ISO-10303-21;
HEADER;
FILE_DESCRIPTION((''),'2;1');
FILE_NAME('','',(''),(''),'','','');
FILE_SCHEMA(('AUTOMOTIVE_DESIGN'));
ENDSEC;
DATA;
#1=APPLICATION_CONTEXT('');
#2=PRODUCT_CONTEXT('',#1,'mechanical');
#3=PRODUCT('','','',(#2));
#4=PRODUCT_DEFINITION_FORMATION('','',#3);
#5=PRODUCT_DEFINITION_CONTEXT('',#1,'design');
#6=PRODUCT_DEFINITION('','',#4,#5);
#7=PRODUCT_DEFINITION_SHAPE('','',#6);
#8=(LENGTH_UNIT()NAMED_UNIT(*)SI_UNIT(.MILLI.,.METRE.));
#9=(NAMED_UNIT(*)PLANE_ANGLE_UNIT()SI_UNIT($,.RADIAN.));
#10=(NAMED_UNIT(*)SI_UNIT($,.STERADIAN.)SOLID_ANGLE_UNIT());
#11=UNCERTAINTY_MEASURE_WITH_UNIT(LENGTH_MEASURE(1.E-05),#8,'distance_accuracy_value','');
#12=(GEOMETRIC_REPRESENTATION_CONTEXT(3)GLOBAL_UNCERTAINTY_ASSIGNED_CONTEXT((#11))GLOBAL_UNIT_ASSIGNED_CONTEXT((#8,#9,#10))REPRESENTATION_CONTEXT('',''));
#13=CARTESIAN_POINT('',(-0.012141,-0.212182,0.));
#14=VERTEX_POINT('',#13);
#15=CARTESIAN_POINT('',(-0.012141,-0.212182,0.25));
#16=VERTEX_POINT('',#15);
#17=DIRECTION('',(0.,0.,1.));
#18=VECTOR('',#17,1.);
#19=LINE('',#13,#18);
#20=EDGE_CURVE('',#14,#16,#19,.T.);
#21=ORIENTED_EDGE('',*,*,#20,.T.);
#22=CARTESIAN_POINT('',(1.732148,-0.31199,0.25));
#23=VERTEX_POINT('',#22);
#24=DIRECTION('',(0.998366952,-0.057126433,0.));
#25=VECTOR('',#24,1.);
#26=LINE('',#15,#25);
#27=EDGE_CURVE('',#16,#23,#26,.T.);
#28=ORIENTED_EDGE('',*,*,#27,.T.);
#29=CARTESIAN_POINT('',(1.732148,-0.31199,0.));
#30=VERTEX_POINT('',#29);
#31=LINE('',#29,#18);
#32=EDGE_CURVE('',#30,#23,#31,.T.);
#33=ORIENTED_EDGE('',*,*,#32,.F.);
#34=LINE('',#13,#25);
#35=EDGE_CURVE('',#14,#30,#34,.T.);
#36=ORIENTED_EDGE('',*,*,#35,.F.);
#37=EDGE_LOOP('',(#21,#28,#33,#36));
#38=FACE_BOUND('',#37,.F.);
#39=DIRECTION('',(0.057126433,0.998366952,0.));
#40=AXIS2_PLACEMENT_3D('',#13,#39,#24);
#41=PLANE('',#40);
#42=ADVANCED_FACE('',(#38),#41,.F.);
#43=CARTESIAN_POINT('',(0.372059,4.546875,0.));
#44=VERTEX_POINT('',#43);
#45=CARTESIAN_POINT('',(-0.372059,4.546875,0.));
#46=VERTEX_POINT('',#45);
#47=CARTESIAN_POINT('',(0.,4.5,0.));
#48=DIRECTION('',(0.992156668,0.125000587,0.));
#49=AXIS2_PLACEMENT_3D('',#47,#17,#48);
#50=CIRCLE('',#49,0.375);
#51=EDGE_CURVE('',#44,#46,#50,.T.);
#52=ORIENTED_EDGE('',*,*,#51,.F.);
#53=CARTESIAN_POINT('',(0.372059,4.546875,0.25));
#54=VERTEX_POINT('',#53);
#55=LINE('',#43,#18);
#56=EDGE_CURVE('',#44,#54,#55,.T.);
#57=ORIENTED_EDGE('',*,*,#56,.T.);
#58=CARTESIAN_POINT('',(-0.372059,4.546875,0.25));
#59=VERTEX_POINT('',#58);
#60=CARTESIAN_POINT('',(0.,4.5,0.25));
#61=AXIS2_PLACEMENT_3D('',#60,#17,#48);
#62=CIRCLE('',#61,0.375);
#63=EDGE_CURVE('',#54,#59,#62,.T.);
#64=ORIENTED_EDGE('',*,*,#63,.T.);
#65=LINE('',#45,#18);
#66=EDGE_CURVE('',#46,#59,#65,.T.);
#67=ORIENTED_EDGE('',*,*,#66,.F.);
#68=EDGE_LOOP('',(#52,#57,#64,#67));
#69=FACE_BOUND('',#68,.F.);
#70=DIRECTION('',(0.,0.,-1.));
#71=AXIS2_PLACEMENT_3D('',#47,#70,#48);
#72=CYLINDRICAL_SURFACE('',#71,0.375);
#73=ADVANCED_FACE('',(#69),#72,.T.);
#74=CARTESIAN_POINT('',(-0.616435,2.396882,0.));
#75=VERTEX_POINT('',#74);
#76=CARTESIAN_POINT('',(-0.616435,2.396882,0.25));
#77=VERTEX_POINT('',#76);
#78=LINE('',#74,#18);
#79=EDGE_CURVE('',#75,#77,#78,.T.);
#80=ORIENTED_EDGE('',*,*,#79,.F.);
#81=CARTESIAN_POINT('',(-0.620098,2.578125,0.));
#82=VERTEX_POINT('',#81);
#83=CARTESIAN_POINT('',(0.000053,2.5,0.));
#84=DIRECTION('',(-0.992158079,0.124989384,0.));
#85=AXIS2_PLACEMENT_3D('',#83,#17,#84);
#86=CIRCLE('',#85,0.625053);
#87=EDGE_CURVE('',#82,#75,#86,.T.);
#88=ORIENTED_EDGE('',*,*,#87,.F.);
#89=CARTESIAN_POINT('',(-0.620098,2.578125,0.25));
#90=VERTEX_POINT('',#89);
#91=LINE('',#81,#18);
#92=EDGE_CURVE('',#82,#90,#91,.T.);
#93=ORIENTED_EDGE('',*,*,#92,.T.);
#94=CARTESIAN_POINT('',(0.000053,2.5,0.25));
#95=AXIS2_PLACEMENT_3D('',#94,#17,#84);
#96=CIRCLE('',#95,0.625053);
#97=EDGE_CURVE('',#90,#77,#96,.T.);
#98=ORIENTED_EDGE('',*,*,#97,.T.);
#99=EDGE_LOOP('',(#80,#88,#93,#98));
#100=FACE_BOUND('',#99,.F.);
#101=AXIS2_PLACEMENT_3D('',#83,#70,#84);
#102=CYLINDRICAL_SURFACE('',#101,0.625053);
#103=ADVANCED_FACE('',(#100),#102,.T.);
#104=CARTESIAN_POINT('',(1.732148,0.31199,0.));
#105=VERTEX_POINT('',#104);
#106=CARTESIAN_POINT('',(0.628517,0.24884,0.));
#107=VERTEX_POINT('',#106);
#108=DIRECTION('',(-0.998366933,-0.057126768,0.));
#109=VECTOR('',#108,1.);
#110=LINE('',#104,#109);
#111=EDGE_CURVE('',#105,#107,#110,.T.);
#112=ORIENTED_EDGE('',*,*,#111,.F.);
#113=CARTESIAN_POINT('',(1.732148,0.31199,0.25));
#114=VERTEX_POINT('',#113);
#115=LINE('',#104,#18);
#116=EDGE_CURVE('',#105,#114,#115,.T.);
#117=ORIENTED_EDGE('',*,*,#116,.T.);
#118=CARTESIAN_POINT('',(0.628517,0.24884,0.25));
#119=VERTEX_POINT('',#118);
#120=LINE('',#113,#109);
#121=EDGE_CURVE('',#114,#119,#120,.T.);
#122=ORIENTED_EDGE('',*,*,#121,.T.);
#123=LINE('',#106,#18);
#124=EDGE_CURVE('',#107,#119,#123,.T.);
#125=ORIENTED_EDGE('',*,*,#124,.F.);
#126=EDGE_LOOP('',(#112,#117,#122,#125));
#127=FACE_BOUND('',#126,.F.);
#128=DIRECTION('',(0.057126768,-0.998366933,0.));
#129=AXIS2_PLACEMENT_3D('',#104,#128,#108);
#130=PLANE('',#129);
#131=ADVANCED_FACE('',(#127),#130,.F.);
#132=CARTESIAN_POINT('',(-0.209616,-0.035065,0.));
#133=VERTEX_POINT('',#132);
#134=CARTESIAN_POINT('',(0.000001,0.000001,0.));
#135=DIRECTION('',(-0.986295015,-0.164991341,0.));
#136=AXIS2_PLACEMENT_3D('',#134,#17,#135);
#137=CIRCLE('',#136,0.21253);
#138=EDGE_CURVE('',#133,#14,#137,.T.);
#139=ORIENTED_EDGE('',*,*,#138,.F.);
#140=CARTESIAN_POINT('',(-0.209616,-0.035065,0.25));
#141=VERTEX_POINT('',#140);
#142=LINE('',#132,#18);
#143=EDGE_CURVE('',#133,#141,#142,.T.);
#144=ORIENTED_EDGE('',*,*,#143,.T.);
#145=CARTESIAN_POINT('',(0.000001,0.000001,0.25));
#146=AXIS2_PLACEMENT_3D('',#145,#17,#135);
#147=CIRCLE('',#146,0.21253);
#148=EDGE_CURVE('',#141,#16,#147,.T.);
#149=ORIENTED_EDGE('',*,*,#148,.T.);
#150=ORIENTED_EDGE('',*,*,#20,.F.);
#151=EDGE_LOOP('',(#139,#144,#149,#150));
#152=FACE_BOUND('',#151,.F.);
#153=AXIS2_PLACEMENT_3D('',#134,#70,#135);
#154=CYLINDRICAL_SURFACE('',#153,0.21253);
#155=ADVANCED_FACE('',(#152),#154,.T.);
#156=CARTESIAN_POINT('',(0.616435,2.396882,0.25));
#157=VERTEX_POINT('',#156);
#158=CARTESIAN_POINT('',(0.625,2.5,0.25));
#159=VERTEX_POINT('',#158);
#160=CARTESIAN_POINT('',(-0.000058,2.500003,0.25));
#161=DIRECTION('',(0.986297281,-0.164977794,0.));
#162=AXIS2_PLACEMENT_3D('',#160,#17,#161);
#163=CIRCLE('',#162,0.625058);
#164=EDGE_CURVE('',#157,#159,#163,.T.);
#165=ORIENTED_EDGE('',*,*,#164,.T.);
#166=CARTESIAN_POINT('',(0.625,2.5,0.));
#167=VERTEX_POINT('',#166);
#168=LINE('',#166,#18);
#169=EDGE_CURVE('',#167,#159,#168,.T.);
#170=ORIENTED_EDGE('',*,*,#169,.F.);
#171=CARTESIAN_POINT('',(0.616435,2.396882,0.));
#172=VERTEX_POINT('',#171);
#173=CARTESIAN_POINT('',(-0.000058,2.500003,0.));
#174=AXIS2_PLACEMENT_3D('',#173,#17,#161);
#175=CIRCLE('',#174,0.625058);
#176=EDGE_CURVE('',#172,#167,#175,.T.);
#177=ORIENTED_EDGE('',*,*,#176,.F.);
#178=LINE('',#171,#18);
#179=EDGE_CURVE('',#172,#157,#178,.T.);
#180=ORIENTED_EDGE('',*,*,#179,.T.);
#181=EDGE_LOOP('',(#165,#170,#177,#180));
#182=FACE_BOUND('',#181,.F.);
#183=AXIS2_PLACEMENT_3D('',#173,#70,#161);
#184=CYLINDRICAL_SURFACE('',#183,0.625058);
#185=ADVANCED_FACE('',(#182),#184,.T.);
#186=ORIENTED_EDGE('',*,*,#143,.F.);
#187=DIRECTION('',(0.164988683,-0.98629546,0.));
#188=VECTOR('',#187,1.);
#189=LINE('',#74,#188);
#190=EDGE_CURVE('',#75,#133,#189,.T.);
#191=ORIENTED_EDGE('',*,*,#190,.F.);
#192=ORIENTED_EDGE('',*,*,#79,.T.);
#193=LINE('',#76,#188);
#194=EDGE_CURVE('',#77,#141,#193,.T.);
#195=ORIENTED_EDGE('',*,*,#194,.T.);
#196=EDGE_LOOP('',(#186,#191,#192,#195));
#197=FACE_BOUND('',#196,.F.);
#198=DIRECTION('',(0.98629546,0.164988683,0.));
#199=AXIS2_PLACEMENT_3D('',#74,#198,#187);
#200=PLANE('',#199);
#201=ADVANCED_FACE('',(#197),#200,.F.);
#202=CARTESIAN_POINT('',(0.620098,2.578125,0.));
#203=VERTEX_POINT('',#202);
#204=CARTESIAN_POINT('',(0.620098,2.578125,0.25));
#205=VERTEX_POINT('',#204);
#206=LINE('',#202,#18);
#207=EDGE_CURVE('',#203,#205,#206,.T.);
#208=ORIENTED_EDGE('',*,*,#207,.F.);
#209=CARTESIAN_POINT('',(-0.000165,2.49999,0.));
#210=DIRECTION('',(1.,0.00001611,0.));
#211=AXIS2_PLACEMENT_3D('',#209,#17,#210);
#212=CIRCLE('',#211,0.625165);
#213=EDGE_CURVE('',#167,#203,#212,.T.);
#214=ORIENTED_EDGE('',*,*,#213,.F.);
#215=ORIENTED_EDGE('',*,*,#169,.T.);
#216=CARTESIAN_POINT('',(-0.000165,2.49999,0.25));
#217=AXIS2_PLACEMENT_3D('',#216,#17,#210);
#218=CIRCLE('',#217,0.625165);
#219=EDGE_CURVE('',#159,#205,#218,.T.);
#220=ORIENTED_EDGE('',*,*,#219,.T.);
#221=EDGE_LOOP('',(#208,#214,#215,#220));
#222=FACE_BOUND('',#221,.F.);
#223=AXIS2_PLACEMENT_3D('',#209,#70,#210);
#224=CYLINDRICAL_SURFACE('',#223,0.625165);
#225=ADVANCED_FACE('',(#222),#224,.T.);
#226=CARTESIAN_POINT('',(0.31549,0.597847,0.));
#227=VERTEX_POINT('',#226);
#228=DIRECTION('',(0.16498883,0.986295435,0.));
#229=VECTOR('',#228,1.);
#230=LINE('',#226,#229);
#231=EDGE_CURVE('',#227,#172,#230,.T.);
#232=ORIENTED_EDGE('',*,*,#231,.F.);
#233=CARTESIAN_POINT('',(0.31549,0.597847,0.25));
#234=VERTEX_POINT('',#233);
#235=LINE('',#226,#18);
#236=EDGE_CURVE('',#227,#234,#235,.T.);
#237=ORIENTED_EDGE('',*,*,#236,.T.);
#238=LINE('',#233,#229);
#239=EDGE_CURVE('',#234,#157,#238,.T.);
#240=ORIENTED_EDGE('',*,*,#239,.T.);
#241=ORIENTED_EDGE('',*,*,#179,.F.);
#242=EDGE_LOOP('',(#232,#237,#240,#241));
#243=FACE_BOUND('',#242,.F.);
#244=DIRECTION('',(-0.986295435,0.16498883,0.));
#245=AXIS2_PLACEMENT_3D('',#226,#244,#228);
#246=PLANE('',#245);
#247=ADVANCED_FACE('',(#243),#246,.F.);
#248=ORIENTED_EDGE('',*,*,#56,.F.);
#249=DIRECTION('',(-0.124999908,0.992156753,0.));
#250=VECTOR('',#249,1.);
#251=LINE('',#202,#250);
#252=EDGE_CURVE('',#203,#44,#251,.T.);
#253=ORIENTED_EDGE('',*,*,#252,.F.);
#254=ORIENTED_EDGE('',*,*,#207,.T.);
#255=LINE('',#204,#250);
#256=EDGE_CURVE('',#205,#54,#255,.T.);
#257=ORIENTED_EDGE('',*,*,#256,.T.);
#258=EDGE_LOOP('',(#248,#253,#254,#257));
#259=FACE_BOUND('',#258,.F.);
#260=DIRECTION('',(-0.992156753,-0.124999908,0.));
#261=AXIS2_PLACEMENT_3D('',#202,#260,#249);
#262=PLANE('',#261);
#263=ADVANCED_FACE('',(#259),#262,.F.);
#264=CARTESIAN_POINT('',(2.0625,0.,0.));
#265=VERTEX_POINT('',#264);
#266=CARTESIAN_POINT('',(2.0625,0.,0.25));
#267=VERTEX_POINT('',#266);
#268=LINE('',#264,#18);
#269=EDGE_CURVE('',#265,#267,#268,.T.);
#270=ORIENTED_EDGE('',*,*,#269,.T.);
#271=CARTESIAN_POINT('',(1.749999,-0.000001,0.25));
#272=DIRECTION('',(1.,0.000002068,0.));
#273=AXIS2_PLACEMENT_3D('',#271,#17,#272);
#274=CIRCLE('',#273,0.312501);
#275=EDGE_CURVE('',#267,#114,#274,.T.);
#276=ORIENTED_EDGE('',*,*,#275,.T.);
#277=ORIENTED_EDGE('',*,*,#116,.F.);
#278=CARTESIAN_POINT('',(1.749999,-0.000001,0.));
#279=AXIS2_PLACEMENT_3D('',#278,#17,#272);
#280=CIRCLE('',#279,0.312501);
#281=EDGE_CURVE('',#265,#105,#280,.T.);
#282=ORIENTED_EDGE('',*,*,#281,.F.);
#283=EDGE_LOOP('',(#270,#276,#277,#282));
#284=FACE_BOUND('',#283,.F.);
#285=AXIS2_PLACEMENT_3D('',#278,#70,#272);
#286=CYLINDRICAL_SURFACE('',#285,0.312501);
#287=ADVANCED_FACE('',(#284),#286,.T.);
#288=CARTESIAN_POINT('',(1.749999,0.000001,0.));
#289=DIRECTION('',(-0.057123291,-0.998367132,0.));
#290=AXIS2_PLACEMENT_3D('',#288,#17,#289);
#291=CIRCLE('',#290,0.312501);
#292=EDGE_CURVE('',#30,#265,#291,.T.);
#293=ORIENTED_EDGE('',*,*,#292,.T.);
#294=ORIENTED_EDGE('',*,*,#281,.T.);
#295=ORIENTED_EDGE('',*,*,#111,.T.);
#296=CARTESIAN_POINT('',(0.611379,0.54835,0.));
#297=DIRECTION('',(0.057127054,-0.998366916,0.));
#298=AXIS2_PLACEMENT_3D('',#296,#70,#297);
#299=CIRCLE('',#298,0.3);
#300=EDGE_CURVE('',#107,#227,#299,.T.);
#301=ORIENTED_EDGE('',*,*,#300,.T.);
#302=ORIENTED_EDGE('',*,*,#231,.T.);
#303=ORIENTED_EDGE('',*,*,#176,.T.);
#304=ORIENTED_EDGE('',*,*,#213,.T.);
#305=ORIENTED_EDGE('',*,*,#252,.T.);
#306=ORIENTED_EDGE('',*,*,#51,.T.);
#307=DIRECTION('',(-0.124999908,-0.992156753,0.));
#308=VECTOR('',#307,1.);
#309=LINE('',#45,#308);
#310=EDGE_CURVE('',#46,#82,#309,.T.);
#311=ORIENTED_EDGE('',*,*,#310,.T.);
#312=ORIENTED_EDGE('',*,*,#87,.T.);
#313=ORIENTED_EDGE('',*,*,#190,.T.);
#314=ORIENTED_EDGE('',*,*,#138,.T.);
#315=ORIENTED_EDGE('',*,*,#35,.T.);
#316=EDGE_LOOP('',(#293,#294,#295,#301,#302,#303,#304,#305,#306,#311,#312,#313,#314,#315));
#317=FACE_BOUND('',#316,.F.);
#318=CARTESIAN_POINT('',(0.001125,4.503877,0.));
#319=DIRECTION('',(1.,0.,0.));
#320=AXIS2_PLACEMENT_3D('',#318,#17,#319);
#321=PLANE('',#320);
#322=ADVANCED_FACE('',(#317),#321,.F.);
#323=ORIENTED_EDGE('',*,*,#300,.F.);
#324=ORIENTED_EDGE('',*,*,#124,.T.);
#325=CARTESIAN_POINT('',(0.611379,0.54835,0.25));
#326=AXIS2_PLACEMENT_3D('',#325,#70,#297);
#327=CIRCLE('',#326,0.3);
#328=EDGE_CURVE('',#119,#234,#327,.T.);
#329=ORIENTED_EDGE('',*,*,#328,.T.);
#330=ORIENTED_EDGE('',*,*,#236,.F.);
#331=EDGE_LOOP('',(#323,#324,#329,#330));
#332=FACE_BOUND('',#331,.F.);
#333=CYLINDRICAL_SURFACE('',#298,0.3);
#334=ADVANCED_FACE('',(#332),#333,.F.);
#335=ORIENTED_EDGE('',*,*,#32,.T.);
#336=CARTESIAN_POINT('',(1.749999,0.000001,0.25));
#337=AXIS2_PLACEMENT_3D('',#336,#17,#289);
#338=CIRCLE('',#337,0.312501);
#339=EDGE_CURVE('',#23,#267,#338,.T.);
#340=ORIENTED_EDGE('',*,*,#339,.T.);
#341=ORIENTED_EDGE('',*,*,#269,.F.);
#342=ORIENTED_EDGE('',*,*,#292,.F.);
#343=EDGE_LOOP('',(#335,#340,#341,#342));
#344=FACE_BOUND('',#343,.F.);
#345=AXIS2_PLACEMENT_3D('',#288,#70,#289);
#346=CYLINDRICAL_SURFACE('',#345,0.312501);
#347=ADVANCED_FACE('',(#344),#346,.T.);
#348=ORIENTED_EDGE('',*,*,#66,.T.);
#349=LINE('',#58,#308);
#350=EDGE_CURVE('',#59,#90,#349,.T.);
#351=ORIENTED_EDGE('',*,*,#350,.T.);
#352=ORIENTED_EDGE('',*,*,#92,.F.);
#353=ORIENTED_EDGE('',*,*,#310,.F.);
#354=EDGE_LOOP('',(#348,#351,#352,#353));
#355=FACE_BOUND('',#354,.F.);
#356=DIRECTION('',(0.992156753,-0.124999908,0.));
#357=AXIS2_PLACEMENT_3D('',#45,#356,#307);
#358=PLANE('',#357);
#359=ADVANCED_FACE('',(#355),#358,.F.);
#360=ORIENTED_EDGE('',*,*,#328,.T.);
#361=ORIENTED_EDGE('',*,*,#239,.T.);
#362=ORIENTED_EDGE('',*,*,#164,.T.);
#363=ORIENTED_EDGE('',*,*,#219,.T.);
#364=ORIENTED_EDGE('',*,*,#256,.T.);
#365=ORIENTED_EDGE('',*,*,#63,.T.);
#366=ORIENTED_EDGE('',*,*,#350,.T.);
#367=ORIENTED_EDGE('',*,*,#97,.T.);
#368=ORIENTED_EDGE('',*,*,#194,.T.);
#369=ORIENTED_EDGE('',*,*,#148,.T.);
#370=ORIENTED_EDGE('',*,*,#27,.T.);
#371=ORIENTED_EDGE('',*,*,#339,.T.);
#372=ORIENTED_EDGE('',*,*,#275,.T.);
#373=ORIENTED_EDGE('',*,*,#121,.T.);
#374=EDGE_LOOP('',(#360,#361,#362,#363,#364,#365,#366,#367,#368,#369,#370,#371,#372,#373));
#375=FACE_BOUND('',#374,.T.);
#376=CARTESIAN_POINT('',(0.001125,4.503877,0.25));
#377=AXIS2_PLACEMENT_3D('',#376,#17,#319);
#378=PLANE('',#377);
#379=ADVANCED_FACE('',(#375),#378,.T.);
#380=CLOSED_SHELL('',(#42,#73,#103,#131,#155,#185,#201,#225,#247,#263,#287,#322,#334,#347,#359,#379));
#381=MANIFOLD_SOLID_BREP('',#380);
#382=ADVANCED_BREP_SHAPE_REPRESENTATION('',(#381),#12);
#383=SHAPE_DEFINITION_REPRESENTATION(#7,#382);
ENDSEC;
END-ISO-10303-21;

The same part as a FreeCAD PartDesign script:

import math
import FreeCAD as App
import Part
import Sketcher
from FreeCAD import Vector
Q = App.Units.Quantity

doc = App.newDocument("Part")
body = doc.addObject("PartDesign::Body", "Body")

# Sketch on XY plane
sketch1 = body.newObject("Sketcher::SketchObject", "Sketch")
sketch1.AttachmentSupport = (doc.getObject("XY_Plane"), [""])
sketch1.MapMode = "FlatFace"
sketch1.addGeometry([
    Part.ArcOfCircle(Part.Circle(Vector(0, 4.5, 0), Vector(0, 0, 1), 0.375), math.radians(7.18079), math.radians(172.81921)),  # 0
    Part.LineSegment(Vector(-0.372059, 4.546875, 0), Vector(-0.620098, 2.578125, 0)),  # 1
    Part.ArcOfCircle(Part.Circle(Vector(0.000053, 2.5, 0), Vector(0, 0, 1), 0.625053), math.radians(172.819857), math.radians(189.495773)),  # 2
    Part.LineSegment(Vector(-0.616435, 2.396882, 0), Vector(-0.209616, -0.035065, 0)),  # 3
    Part.ArcOfCircle(Part.Circle(Vector(0.000001, 0.000001, 0), Vector(0, 0, 1), 0.21253), math.radians(-170.503269), math.radians(-93.27513)),  # 4
    Part.LineSegment(Vector(-0.012141, -0.212182, 0), Vector(1.732148, -0.31199, 0)),  # 5
    Part.ArcOfCircle(Part.Circle(Vector(1.749999, 0.000001, 0), Vector(0, 0, 1), 0.312501), math.radians(-93.274706), math.radians(-0.000118)),  # 6
    Part.ArcOfCircle(Part.Circle(Vector(1.749999, -0.000001, 0), Vector(0, 0, 1), 0.312501), math.radians(0.000118), math.radians(93.274706)),  # 7
    Part.LineSegment(Vector(1.732148, 0.31199, 0), Vector(0.628517, 0.24884, 0)),  # 8
    Part.ArcOfCircle(Part.Circle(Vector(0.611379, 0.54835, 0), Vector(0, 0, 1), 0.3), math.radians(170.503415), math.radians(273.274922)),  # 9
    Part.LineSegment(Vector(0.31549, 0.597847, 0), Vector(0.616435, 2.396882, 0)),  # 10
    Part.ArcOfCircle(Part.Circle(Vector(-0.000058, 2.500003, 0), Vector(0, 0, 1), 0.625058), math.radians(-9.495944), math.radians(-0.000253)),  # 11
    Part.ArcOfCircle(Part.Circle(Vector(-0.000165, 2.49999, 0), Vector(0, 0, 1), 0.625165), math.radians(0.000923), math.radians(7.179779)),  # 12
    Part.LineSegment(Vector(0.620098, 2.578125, 0), Vector(0.372059, 4.546875, 0)),  # 13
], False)
sketch1.addConstraint([
    Sketcher.Constraint("Tangent", 0, 2, 1, 1),
    Sketcher.Constraint("Coincident", 1, 2, 2, 1),
    Sketcher.Constraint("Coincident", 2, 2, 3, 1),
    Sketcher.Constraint("Coincident", 3, 2, 4, 1),
    Sketcher.Constraint("Coincident", 4, 2, 5, 1),
    Sketcher.Constraint("Coincident", 5, 2, 6, 1),
    Sketcher.Constraint("Coincident", 6, 2, 7, 1),
    Sketcher.Constraint("Coincident", 7, 2, 8, 1),
    Sketcher.Constraint("Tangent", 8, 2, 9, 2),
    Sketcher.Constraint("Tangent", 9, 1, 10, 1),
    Sketcher.Constraint("Coincident", 10, 2, 11, 1),
    Sketcher.Constraint("Coincident", 11, 2, 12, 1),
    Sketcher.Constraint("Coincident", 12, 2, 13, 1),
    Sketcher.Constraint("Tangent", 13, 2, 0, 1),
    Sketcher.Constraint("Coincident", 4, 3, -1, 1),
    Sketcher.Constraint("Coincident", 7, 3, 6, 3),
    Sketcher.Constraint("Symmetric", 2, 3, 11, 3, -2),
    Sketcher.Constraint("Symmetric", 2, 2, 10, 2, -2),
    Sketcher.Constraint("Symmetric", 1, 2, 12, 2, -2),
    Sketcher.Constraint("Symmetric", 5, 2, 7, 2, -1),
    Sketcher.Constraint("PointOnObject", 0, 3, -2),
    Sketcher.Constraint("PointOnObject", 6, 2, -1),
    Sketcher.Constraint("Horizontal", 2, 3, 11, 2),
    Sketcher.Constraint("Radius", 9, Q("0.3 mm")),
    Sketcher.Constraint("Radius", 0, Q("0.375 mm")),
    Sketcher.Constraint("DistanceY", 2, 3, 0, 3, Q("2 mm")),
    Sketcher.Constraint("DistanceY", -1, 1, 0, 3, Q("4.5 mm")),
    Sketcher.Constraint("Radius", 6, Q("0.312501 mm")),
    Sketcher.Constraint("DistanceX", -1, 1, 6, 3, Q("1.749999 mm")),
    Sketcher.Constraint("Radius", 4, Q("0.21253 mm")),
    Sketcher.Constraint("Radius", 11, Q("0.625058 mm")),
    Sketcher.Constraint("DistanceX", -1, 1, 11, 2, Q("0.625 mm")),
    Sketcher.Constraint("Radius", 12, Q("0.625165 mm")),
    Sketcher.Constraint("DistanceX", 1, 2, -1, 1, Q("0.620098 mm")),
    Sketcher.Constraint("DistanceX", 12, 3, 10, 2, Q("0.6166 mm")),
    Sketcher.Constraint("Distance", 3, Q("2.465739 mm")),
    Sketcher.Constraint("DistanceX", -1, 1, 9, 3, Q("0.611379 mm")),
    Sketcher.Constraint("DistanceY", -1, 1, 9, 3, Q("0.54835 mm")),
    Sketcher.Constraint("DistanceX", 4, 2, -1, 1, Q("0.012141 mm")),
    Sketcher.Constraint("DistanceY", 5, 2, -1, 1, Q("0.31199 mm")),
])
pad1 = body.newObject("PartDesign::Pad", "Pad")
pad1.Profile = sketch1
pad1.Length = 0.25

doc.recompute()
